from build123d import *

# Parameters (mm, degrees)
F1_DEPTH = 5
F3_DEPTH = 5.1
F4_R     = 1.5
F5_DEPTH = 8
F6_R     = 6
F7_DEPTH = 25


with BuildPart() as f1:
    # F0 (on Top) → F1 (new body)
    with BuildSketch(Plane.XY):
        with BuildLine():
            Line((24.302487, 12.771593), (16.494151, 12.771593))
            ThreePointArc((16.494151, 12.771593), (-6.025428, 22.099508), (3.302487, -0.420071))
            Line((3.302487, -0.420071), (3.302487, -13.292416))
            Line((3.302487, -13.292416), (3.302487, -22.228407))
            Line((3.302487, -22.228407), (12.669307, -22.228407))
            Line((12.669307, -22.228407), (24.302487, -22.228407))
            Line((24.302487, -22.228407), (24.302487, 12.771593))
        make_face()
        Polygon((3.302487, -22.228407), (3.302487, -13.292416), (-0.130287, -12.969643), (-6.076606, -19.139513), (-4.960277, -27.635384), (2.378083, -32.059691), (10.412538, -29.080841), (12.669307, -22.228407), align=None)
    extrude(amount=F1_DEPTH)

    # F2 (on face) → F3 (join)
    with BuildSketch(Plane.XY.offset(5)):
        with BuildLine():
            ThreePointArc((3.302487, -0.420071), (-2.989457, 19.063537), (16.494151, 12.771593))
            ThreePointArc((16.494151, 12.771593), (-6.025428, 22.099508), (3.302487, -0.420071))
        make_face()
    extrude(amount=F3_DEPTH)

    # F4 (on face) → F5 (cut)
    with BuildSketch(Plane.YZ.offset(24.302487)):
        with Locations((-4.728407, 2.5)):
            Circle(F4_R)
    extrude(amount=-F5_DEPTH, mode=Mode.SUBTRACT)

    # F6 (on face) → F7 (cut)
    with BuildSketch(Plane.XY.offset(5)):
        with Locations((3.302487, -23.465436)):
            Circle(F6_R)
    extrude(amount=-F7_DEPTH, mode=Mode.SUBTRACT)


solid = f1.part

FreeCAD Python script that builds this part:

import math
import FreeCAD as App
import Part
import Sketcher

doc = App.newDocument("Part")
body = doc.addObject("PartDesign::Body", "Body")

# Sketch on XY plane
sketch1 = doc.addObject("Sketcher::SketchObject", "Sketch")
body.addObject(sketch1)
sketch1.AttachmentSupport = (doc.XY_Plane, [""])
sketch1.MapMode = "FlatFace"
sketch1.addGeometry([
    Part.LineSegment(App.Vector(24.3, -22.2, 0), App.Vector(24.3, 12.8, 0)),  # 0
    Part.LineSegment(App.Vector(24.3, 12.8, 0), App.Vector(16.5, 12.8, 0)),  # 1
    Part.ArcOfCircle(Part.Circle(App.Vector(3.3, 12.8, 0), App.Vector(0, 0, 1), 13.2), math.radians(0), math.radians(270)),  # 2
    Part.LineSegment(App.Vector(3.3, -0.4, 0), App.Vector(3.3, -13.3, 0)),  # 3
    Part.LineSegment(App.Vector(3.3, -13.3, 0), App.Vector(-0.1, -13, 0)),  # 4
    Part.LineSegment(App.Vector(-0.1, -13, 0), App.Vector(-6.1, -19.1, 0)),  # 5
    Part.LineSegment(App.Vector(-6.1, -19.1, 0), App.Vector(-5, -27.6, 0)),  # 6
    Part.LineSegment(App.Vector(-5, -27.6, 0), App.Vector(2.4, -32.1, 0)),  # 7
    Part.LineSegment(App.Vector(2.4, -32.1, 0), App.Vector(10.4, -29.1, 0)),  # 8
    Part.LineSegment(App.Vector(10.4, -29.1, 0), App.Vector(12.7, -22.2, 0)),  # 9
    Part.LineSegment(App.Vector(12.7, -22.2, 0), App.Vector(24.3, -22.2, 0)),  # 10
], False)
sketch1.addConstraint([
    Sketcher.Constraint("Coincident", 0, 2, 1, 1),
    Sketcher.Constraint("Coincident", 1, 2, 2, 1),
    Sketcher.Constraint("Coincident", 2, 2, 3, 1),
    Sketcher.Constraint("Coincident", 3, 2, 4, 1),
    Sketcher.Constraint("Coincident", 4, 2, 5, 1),
    Sketcher.Constraint("Coincident", 5, 2, 6, 1),
    Sketcher.Constraint("Coincident", 6, 2, 7, 1),
    Sketcher.Constraint("Coincident", 7, 2, 8, 1),
    Sketcher.Constraint("Coincident", 8, 2, 9, 1),
    Sketcher.Constraint("Coincident", 9, 2, 10, 1),
    Sketcher.Constraint("Coincident", 10, 2, 0, 1),
    Sketcher.Constraint("Vertical", 0),
    Sketcher.Constraint("Horizontal", 1),
    Sketcher.Constraint("Vertical", 3),
    Sketcher.Constraint("Horizontal", 10),
    Sketcher.Constraint("Horizontal", 2, 3, 0, 2),
    Sketcher.Constraint("Equal", 5, 6),
    Sketcher.Constraint("Equal", 6, 7),
    Sketcher.Constraint("Equal", 7, 8),
    Sketcher.Constraint("DistanceY", 0, 1, 0, 2, 35.0),
    Sketcher.Constraint("DistanceX", 2, 3, 0, 2, 21.0),
    Sketcher.Constraint("DistanceX", 2, 2, 0, 2, 21.0),
    Sketcher.Constraint("Radius", 2, 13.191664),
    Sketcher.Constraint("Distance", 6, 8.568898),
    Sketcher.Constraint("DistanceX", 10, 1, 10, 2, 11.63318),
    Sketcher.Constraint("DistanceY", 8, 2, 4, 2, 16.111198),
    Sketcher.Constraint("Distance", 9, 7.214489),
    Sketcher.Constraint("DistanceY", 3, 2, 3, 1, 12.872345),
    Sketcher.Constraint("DistanceX", -1, 1, 1, 2, 16.494151),
    Sketcher.Constraint("DistanceY", 2, 2, -1, 1, 0.420071),
    Sketcher.Constraint("DistanceY", 7, 2, -1, 1, 32.059691),
    Sketcher.Constraint("DistanceY", 8, 2, -1, 1, 29.080841),
    Sketcher.Constraint("DistanceX", 5, 2, 4, 2, 5.946319),
    Sketcher.Constraint("DistanceX", 5, 2, 6, 2, 1.116329),
])
pad1 = doc.addObject("PartDesign::Pad", "Pad")
body.addObject(pad1)
pad1.Profile = sketch1
pad1.Length = 5

# Sketch on XY plane
sketch2 = doc.addObject("Sketcher::SketchObject", "Sketch001")
body.addObject(sketch2)
sketch2.AttachmentSupport = (doc.XY_Plane, [""])
sketch2.MapMode = "FlatFace"
sketch2.AttachmentOffset = App.Placement(App.Vector(0, 0, 5), App.Rotation())
sketch2.addGeometry([
    Part.ArcOfCircle(Part.Circle(App.Vector(5.142271, 10.931809, 0), App.Vector(0, 0, 1), 11.5), math.radians(9.205805), math.radians(260.794195)),
    Part.ArcOfCircle(Part.Circle(App.Vector(3.302487, 12.771593, 0), App.Vector(0, 0, 1), 13.191664), math.radians(0), math.radians(270)),
], False)
sketch2.addConstraint([
    Sketcher.Constraint("Coincident", 0, 1, 1, 1),
    Sketcher.Constraint("Coincident", 1, 2, 0, 2),
    Sketcher.Constraint("Radius", 0, 11.5),
    Sketcher.Constraint("Radius", 1, 13.191664),
    Sketcher.Constraint("DistanceX", -1, 1, 0, 3, 5.142271),
    Sketcher.Constraint("DistanceY", -1, 1, 0, 3, 10.931809),
    Sketcher.Constraint("DistanceX", -1, 1, 0, 1, 16.494151),
    Sketcher.Constraint("DistanceY", 1, 2, -1, 1, 0.420071),
])
pad2 = doc.addObject("PartDesign::Pad", "Pad001")
body.addObject(pad2)
pad2.Profile = sketch2
pad2.Length = 5.1

# Sketch on YZ plane
sketch3 = doc.addObject("Sketcher::SketchObject", "Sketch002")
body.addObject(sketch3)
sketch3.AttachmentSupport = (doc.YZ_Plane, [""])
sketch3.MapMode = "FlatFace"
sketch3.AttachmentOffset = App.Placement(App.Vector(0, 0, 24.302487), App.Rotation())
sketch3.addGeometry(Part.Circle(App.Vector(-4.7, 2.5, 0), App.Vector(0, 0, 1), 1.5), False)
sketch3.addConstraint([
    Sketcher.Constraint("Diameter", 0, 3.0),
    Sketcher.Constraint("DistanceY", -1, 1, 0, 3, 2.5),
    Sketcher.Constraint("DistanceX", 0, 3, -1, 1, 4.728407),
])
pocket1 = doc.addObject("PartDesign::Pocket", "Pocket")
body.addObject(pocket1)
pocket1.Profile = sketch3
pocket1.Length = 8

# Sketch on XY plane
sketch4 = doc.addObject("Sketcher::SketchObject", "Sketch003")
body.addObject(sketch4)
sketch4.AttachmentSupport = (doc.XY_Plane, [""])
sketch4.MapMode = "FlatFace"
sketch4.AttachmentOffset = App.Placement(App.Vector(0, 0, 5), App.Rotation())
sketch4.addGeometry(Part.Circle(App.Vector(3, -23, 0), App.Vector(0, 0, 1), 6), False)
sketch4.addConstraint([
    Sketcher.Constraint("Diameter", 0, 12.0),
    Sketcher.Constraint("DistanceX", -1, 1, 0, 3, 3.302487),
    Sketcher.Constraint("DistanceY", 0, 3, -1, 1, 23.465436),
])
pocket2 = doc.addObject("PartDesign::Pocket", "Pocket001")
body.addObject(pocket2)
pocket2.Profile = sketch4
pocket2.Length = 25

doc.recompute()
